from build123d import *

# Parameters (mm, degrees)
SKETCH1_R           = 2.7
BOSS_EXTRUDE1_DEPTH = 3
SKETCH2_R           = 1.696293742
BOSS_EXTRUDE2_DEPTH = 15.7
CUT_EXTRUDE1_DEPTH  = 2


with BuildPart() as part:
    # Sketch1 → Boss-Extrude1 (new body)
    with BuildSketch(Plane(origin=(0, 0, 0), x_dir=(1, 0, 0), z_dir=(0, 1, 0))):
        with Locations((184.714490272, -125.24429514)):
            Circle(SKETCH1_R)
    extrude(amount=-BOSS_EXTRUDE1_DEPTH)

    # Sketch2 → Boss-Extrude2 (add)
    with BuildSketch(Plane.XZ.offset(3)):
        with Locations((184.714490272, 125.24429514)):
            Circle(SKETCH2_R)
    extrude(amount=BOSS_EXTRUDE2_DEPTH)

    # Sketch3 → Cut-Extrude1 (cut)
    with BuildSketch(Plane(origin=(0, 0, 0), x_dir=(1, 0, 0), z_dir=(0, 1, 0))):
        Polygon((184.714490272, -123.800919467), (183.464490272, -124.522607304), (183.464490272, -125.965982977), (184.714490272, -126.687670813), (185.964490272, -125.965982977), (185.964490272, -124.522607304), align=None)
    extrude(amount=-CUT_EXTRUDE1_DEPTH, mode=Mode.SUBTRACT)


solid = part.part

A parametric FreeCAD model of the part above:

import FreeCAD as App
import Part
import Sketcher
Q = App.Units.Quantity

doc = App.newDocument("Part")
params = doc.addObject("Spreadsheet::Sheet", "Params")
for row, (alias, value) in enumerate([
    ("sketch1_diameter", "5.4 mm"),
    ("pad1_length", "3 mm"),
    ("pad2_length", "15.7 mm"),
    ("pocket1_length", "2 mm"),
], start=1):
    params.set(f"A{row}", alias)
    params.set(f"B{row}", "=" + value)
    params.setAlias(f"B{row}", alias)

body = doc.addObject("PartDesign::Body", "Body")

sketch1 = doc.addObject("Sketcher::SketchObject", "Sketch")
body.addObject(sketch1)
sketch1.AttachmentSupport = (doc.XZ_Plane, [""])
sketch1.MapMode = "FlatFace"
sketch1.addGeometry(Part.Circle(App.Vector(184.7, 125.2, 0), App.Vector(0, 0, 1), 2.7), False)
sketch1.addConstraint([
    Sketcher.Constraint("Diameter", 0, 5.4),
    Sketcher.Constraint("DistanceX", -1, 1, 0, 3, 184.71449),
    Sketcher.Constraint("DistanceY", -1, 1, 0, 3, 125.244295),
])
sketch1.setExpression("Constraints[0]", "Params.sketch1_diameter")
pad1 = doc.addObject("PartDesign::Pad", "Pad")
body.addObject(pad1)
pad1.Profile = sketch1
pad1.setExpression("Length", "Params.pad1_length")

sketch2 = doc.addObject("Sketcher::SketchObject", "Sketch001")
body.addObject(sketch2)
sketch2.AttachmentSupport = (doc.XZ_Plane, [""])
sketch2.MapMode = "FlatFace"
sketch2.AttachmentOffset = App.Placement(App.Vector(0, 0, 3), App.Rotation())
sketch2.addGeometry(Part.Circle(App.Vector(184.7, 125.2, 0), App.Vector(0, 0, 1), 1.7), False)
sketch2.addConstraint([
    Sketcher.Constraint("Diameter", 0, 3.392587),
    Sketcher.Constraint("DistanceX", -1, 1, 0, 3, 184.71449),
    Sketcher.Constraint("DistanceY", -1, 1, 0, 3, 125.244295),
])
pad2 = doc.addObject("PartDesign::Pad", "Pad001")
body.addObject(pad2)
pad2.Profile = sketch2
pad2.setExpression("Length", "Params.pad2_length")

sketch3 = doc.addObject("Sketcher::SketchObject", "Sketch002")
body.addObject(sketch3)
sketch3.AttachmentSupport = (doc.XZ_Plane, [""])
sketch3.MapMode = "FlatFace"
sketch3.addGeometry([
    Part.LineSegment(App.Vector(184.7, 123.8, 0), App.Vector(183.5, 124.5, 0)),
    Part.LineSegment(App.Vector(183.5, 124.5, 0), App.Vector(183.5, 126, 0)),
    Part.LineSegment(App.Vector(183.5, 126, 0), App.Vector(184.7, 126.7, 0)),
    Part.LineSegment(App.Vector(184.7, 126.7, 0), App.Vector(186, 126, 0)),
    Part.LineSegment(App.Vector(186, 126, 0), App.Vector(186, 124.5, 0)),
    Part.LineSegment(App.Vector(186, 124.5, 0), App.Vector(184.7, 123.8, 0)),
], False)
sketch3.addConstraint([
    Sketcher.Constraint("Coincident", 0, 2, 1, 1),
    Sketcher.Constraint("Coincident", 1, 2, 2, 1),
    Sketcher.Constraint("Coincident", 2, 2, 3, 1),
    Sketcher.Constraint("Coincident", 3, 2, 4, 1),
    Sketcher.Constraint("Coincident", 4, 2, 5, 1),
    Sketcher.Constraint("Coincident", 5, 2, 0, 1),
    Sketcher.Constraint("Vertical", 1),
    Sketcher.Constraint("Vertical", 4),
    Sketcher.Constraint("Parallel", 0, 3),
    Sketcher.Constraint("Parallel", 2, 5),
    Sketcher.Constraint("Horizontal", 1, 2, 3, 2),
    Sketcher.Constraint("Horizontal", 0, 2, 4, 2),
    Sketcher.Constraint("Vertical", 2, 2, 5, 2),
    Sketcher.Constraint("Angle", 0, Q("150 deg")),
    Sketcher.Constraint("DistanceX", 1, 2, 3, 2, 2.5),
    Sketcher.Constraint("DistanceY", 1, 1, 1, 2, 1.443376),
    Sketcher.Constraint("DistanceX", -1, 1, 0, 2, 183.46449),
    Sketcher.Constraint("DistanceY", -1, 1, 2, 2, 126.687671),
])
pocket1 = doc.addObject("PartDesign::Pocket", "Pocket")
body.addObject(pocket1)
pocket1.Profile = sketch3
pocket1.setExpression("Length", "Params.pocket1_length")
pocket1.Reversed = True

doc.recompute()
